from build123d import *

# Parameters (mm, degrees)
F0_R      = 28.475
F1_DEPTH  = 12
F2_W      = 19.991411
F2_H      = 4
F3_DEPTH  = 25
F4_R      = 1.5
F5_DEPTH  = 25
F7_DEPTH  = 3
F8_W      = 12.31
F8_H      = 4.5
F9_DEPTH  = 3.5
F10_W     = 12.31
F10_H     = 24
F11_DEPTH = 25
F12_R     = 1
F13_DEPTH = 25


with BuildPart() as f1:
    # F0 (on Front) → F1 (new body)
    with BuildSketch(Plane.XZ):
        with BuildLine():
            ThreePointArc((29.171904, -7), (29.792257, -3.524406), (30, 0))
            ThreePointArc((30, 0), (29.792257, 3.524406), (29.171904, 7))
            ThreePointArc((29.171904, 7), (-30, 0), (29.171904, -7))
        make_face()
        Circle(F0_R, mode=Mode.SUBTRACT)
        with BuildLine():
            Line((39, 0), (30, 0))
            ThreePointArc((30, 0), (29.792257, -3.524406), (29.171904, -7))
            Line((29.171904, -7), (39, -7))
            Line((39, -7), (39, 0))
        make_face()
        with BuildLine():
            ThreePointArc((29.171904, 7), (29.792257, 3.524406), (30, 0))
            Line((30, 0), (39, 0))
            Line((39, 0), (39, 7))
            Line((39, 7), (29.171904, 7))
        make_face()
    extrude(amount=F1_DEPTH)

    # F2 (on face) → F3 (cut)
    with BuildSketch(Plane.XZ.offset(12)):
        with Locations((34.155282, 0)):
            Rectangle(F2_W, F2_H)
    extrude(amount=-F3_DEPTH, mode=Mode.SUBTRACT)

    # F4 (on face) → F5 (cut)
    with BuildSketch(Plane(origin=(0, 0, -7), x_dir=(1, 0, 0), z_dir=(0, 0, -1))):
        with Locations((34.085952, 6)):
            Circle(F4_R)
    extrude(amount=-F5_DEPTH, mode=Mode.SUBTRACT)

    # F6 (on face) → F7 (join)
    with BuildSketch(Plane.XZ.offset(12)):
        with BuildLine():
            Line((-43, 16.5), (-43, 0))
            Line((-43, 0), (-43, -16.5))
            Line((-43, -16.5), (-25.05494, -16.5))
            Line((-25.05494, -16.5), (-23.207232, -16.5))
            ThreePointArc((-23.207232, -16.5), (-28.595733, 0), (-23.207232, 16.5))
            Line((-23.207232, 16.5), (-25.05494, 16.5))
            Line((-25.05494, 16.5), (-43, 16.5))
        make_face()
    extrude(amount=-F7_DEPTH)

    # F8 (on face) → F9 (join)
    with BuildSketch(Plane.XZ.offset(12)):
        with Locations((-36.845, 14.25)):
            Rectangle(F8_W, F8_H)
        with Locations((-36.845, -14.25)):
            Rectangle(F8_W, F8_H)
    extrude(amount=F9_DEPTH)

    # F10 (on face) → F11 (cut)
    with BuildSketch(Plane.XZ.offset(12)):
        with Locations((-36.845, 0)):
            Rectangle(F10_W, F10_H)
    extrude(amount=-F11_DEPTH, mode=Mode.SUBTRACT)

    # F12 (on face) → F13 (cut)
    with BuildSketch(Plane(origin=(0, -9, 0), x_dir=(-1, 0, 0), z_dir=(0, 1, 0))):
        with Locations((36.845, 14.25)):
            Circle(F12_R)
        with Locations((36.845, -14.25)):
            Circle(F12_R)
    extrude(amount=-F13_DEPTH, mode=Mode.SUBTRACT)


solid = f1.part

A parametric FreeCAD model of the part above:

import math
import FreeCAD as App
import Part
import Sketcher
Q = App.Units.Quantity


def add_polygon(sketch, points):
    """Adds a closed chain of lines whose ends are joined by coincident constraints."""
    first, n = sketch.GeometryCount, len(points)
    for a, b in zip(points, points[1:] + points[:1]):
        sketch.addGeometry(Part.LineSegment(App.Vector(*a, 0), App.Vector(*b, 0)), False)
    for i in range(n):
        sketch.addConstraint(Sketcher.Constraint("Coincident", first + i, 2, first + (i + 1) % n, 1))

doc = App.newDocument("Part")
params = doc.addObject("Spreadsheet::Sheet", "Params")
for row, (alias, value) in enumerate([
    ("sketch1_radius", "30 mm"),
    ("sketch1_diameter", "56.95 mm"),
    ("sketch1_height", "14 mm"),
    ("pad1_length", "12 mm"),
    ("sketch2_height", "4 mm"),
    ("pocket1_length", "25 mm"),
    ("sketch3_diameter", "3 mm"),
    ("pocket2_length", "25 mm"),
    ("sketch4_height", "33 mm"),
    ("pad2_length", "3 mm"),
    ("sketch5_height", "4.5 mm"),
    ("sketch5_width", "12.31 mm"),
    ("pad3_length", "3.5 mm"),
    ("sketch6_height", "24 mm"),
    ("sketch6_width", "12.31 mm"),
    ("pocket3_length", "25 mm"),
    ("sketch7_diameter", "2 mm"),
    ("pocket4_length", "25 mm"),
], start=1):
    params.set(f"A{row}", alias)
    params.set(f"B{row}", "=" + value)
    params.setAlias(f"B{row}", alias)

body = doc.addObject("PartDesign::Body", "Body")

sketch1 = body.newObject("Sketcher::SketchObject", "Sketch")
sketch1.AttachmentSupport = (doc.getObject("XZ_Plane"), [""])
sketch1.MapMode = "FlatFace"
sketch1.addGeometry(Part.ArcOfCircle(Part.Circle(App.Vector(0, 0, 0), App.Vector(0, 0, 1), 30), math.radians(13), math.radians(347)), False)
sketch1.addGeometry(Part.LineSegment(App.Vector(29, -7, 0), App.Vector(39, -7, 0)), False)
sketch1.addGeometry(Part.LineSegment(App.Vector(39, -7, 0), App.Vector(39, 7, 0)), False)
sketch1.addGeometry(Part.LineSegment(App.Vector(39, 7, 0), App.Vector(29, 7, 0)), False)
sketch1.addGeometry(Part.Circle(App.Vector(0, 0, 0), App.Vector(0, 0, 1), 28), False)
sketch1.addConstraint(Sketcher.Constraint("Coincident", 0, 2, 1, 1))
sketch1.addConstraint(Sketcher.Constraint("Coincident", 1, 2, 2, 1))
sketch1.addConstraint(Sketcher.Constraint("Coincident", 2, 2, 3, 1))
sketch1.addConstraint(Sketcher.Constraint("Coincident", 3, 2, 0, 1))
sketch1.addConstraint(Sketcher.Constraint("Horizontal", 1))
sketch1.addConstraint(Sketcher.Constraint("Vertical", 2))
sketch1.addConstraint(Sketcher.Constraint("Horizontal", 3))
sketch1.addConstraint(Sketcher.Constraint("Coincident", 0, 3, -1, 1))
sketch1.addConstraint(Sketcher.Constraint("Coincident", 4, 3, -1, 1))
sketch1.addConstraint(Sketcher.Constraint("Vertical", 0, 2, 3, 2))
sketch1.addConstraint(Sketcher.Constraint("Radius", 0, Q("30 mm")))
sketch1.addConstraint(Sketcher.Constraint("Diameter", 4, Q("56.95 mm")))
sketch1.addConstraint(Sketcher.Constraint("DistanceY", 2, 1, 2, 2, Q("14 mm")))
sketch1.addConstraint(Sketcher.Constraint("DistanceX", -1, 1, 1, 2, Q("39 mm")))
sketch1.setExpression("Constraints[10]", "Params.sketch1_radius")
sketch1.setExpression("Constraints[11]", "Params.sketch1_diameter")
sketch1.setExpression("Constraints[12]", "Params.sketch1_height")
pad1 = body.newObject("PartDesign::Pad", "Pad")
pad1.Profile = sketch1
pad1.setExpression("Length", "Params.pad1_length")

sketch2 = body.newObject("Sketcher::SketchObject", "Sketch001")
sketch2.AttachmentSupport = (doc.getObject("XZ_Plane"), [""])
sketch2.MapMode = "FlatFace"
sketch2.AttachmentOffset = App.Placement(App.Vector(0, 0, 12), App.Rotation())
add_polygon(sketch2, [(24.2, 2), (24.2, -2), (44.2, -2), (44.2, 2)])
sketch2.addConstraint(Sketcher.Constraint("Vertical", 0))
sketch2.addConstraint(Sketcher.Constraint("Horizontal", 1))
sketch2.addConstraint(Sketcher.Constraint("Vertical", 2))
sketch2.addConstraint(Sketcher.Constraint("Horizontal", 3))
sketch2.addConstraint(Sketcher.Constraint("DistanceY", 0, 2, 0, 1, Q("4 mm")))
sketch2.addConstraint(Sketcher.Constraint("DistanceY", 0, 2, -1, 1, Q("2 mm")))
sketch2.addConstraint(Sketcher.Constraint("DistanceX", 1, 1, 1, 2, Q("19.991411 mm")))
sketch2.addConstraint(Sketcher.Constraint("DistanceX", -1, 1, 0, 2, Q("24.159577 mm")))
sketch2.setExpression("Constraints[8]", "Params.sketch2_height")
pocket1 = body.newObject("PartDesign::Pocket", "Pocket")
pocket1.Profile = sketch2
pocket1.setExpression("Length", "Params.pocket1_length")

sketch3 = body.newObject("Sketcher::SketchObject", "Sketch002")
sketch3.AttachmentSupport = (doc.getObject("XY_Plane"), [""])
sketch3.MapMode = "FlatFace"
sketch3.AttachmentOffset = App.Placement(App.Vector(0, 0, -7), App.Rotation())
sketch3.addGeometry(Part.Circle(App.Vector(34.1, -6, 0), App.Vector(0, 0, 1), 1.5), False)
sketch3.addConstraint(Sketcher.Constraint("Diameter", 0, Q("3 mm")))
sketch3.addConstraint(Sketcher.Constraint("DistanceY", 0, 3, -1, 1, Q("6 mm")))
sketch3.addConstraint(Sketcher.Constraint("DistanceX", -1, 1, 0, 3, Q("34.085952 mm")))
sketch3.setExpression("Constraints[0]", "Params.sketch3_diameter")
pocket2 = body.newObject("PartDesign::Pocket", "Pocket001")
pocket2.Profile = sketch3
pocket2.setExpression("Length", "Params.pocket2_length")
pocket2.Reversed = True

sketch4 = body.newObject("Sketcher::SketchObject", "Sketch003")
sketch4.AttachmentSupport = (doc.getObject("XZ_Plane"), [""])
sketch4.MapMode = "FlatFace"
sketch4.AttachmentOffset = App.Placement(App.Vector(0, 0, 12), App.Rotation())
sketch4.addGeometry(Part.LineSegment(App.Vector(-43, 16, 0), App.Vector(-43, -16, 0)), False)
sketch4.addGeometry(Part.LineSegment(App.Vector(-43, -16, 0), App.Vector(-23, -16, 0)), False)
sketch4.addGeometry(Part.ArcOfCircle(Part.Circle(App.Vector(-1, 0, 0), App.Vector(0, 0, 1), 28), math.radians(144), math.radians(216)), False)
sketch4.addGeometry(Part.LineSegment(App.Vector(-23, 16, 0), App.Vector(-43, 16, 0)), False)
sketch4.addConstraint(Sketcher.Constraint("Coincident", 0, 2, 1, 1))
sketch4.addConstraint(Sketcher.Constraint("Coincident", 1, 2, 2, 2))
sketch4.addConstraint(Sketcher.Constraint("Coincident", 2, 1, 3, 1))
sketch4.addConstraint(Sketcher.Constraint("Coincident", 3, 2, 0, 1))
sketch4.addConstraint(Sketcher.Constraint("Vertical", 0))
sketch4.addConstraint(Sketcher.Constraint("Horizontal", 1))
sketch4.addConstraint(Sketcher.Constraint("Horizontal", 3))
sketch4.addConstraint(Sketcher.Constraint("Symmetric", 1, 2, 2, 1, -1))
sketch4.addConstraint(Sketcher.Constraint("DistanceY", 0, 2, 0, 1, Q("33 mm")))
sketch4.addConstraint(Sketcher.Constraint("DistanceX", 0, 2, -1, 1, Q("43 mm")))
sketch4.addConstraint(Sketcher.Constraint("Radius", 2, Q("27.956378 mm")))
sketch4.addConstraint(Sketcher.Constraint("DistanceX", 1, 1, 1, 2, Q("19.792768 mm")))
sketch4.setExpression("Constraints[8]", "Params.sketch4_height")
pad2 = body.newObject("PartDesign::Pad", "Pad001")
pad2.Profile = sketch4
pad2.setExpression("Length", "Params.pad2_length")
pad2.Reversed = True

sketch5 = body.newObject("Sketcher::SketchObject", "Sketch004")
sketch5.AttachmentSupport = (doc.getObject("XZ_Plane"), [""])
sketch5.MapMode = "FlatFace"
sketch5.AttachmentOffset = App.Placement(App.Vector(0, 0, 12), App.Rotation())
add_polygon(sketch5, [(-43, 16.5), (-43, 12), (-30.7, 12), (-30.7, 16.5)])
add_polygon(sketch5, [(-43, -12), (-43, -16.5), (-30.7, -16.5), (-30.7, -12)])
sketch5.addConstraint(Sketcher.Constraint("Vertical", 0))
sketch5.addConstraint(Sketcher.Constraint("Horizontal", 1))
sketch5.addConstraint(Sketcher.Constraint("Vertical", 2))
sketch5.addConstraint(Sketcher.Constraint("Horizontal", 3))
sketch5.addConstraint(Sketcher.Constraint("Vertical", 4))
sketch5.addConstraint(Sketcher.Constraint("Horizontal", 5))
sketch5.addConstraint(Sketcher.Constraint("Vertical", 6))
sketch5.addConstraint(Sketcher.Constraint("Horizontal", 7))
sketch5.addConstraint(Sketcher.Constraint("Symmetric", 3, 2, 4, 2, -1))
sketch5.addConstraint(Sketcher.Constraint("Symmetric", 1, 2, 6, 2, -1))
sketch5.addConstraint(Sketcher.Constraint("DistanceY", 0, 2, 0, 1, Q("4.5 mm")))
sketch5.addConstraint(Sketcher.Constraint("DistanceX", 0, 2, -1, 1, Q("43 mm")))
sketch5.addConstraint(Sketcher.Constraint("DistanceY", -1, 1, 0, 2, Q("12 mm")))
sketch5.addConstraint(Sketcher.Constraint("DistanceX", 1, 1, 1, 2, Q("12.31 mm")))
sketch5.setExpression("Constraints[18]", "Params.sketch5_height")
sketch5.setExpression("Constraints[21]", "Params.sketch5_width")
pad3 = body.newObject("PartDesign::Pad", "Pad002")
pad3.Profile = sketch5
pad3.setExpression("Length", "Params.pad3_length")

sketch6 = body.newObject("Sketcher::SketchObject", "Sketch005")
sketch6.AttachmentSupport = (doc.getObject("XZ_Plane"), [""])
sketch6.MapMode = "FlatFace"
sketch6.AttachmentOffset = App.Placement(App.Vector(0, 0, 12), App.Rotation())
add_polygon(sketch6, [(-43, 12), (-43, -12), (-31, -12), (-31, 12)])
sketch6.addConstraint(Sketcher.Constraint("Vertical", 0))
sketch6.addConstraint(Sketcher.Constraint("Horizontal", 1))
sketch6.addConstraint(Sketcher.Constraint("Vertical", 2))
sketch6.addConstraint(Sketcher.Constraint("Horizontal", 3))
sketch6.addConstraint(Sketcher.Constraint("DistanceY", 0, 2, 0, 1, Q("24 mm")))
sketch6.addConstraint(Sketcher.Constraint("DistanceX", 0, 2, -1, 1, Q("43 mm")))
sketch6.addConstraint(Sketcher.Constraint("DistanceY", 0, 2, -1, 1, Q("12 mm")))
sketch6.addConstraint(Sketcher.Constraint("DistanceX", 1, 1, 1, 2, Q("12.31 mm")))
sketch6.setExpression("Constraints[8]", "Params.sketch6_height")
sketch6.setExpression("Constraints[11]", "Params.sketch6_width")
pocket3 = body.newObject("PartDesign::Pocket", "Pocket002")
pocket3.Profile = sketch6
pocket3.setExpression("Length", "Params.pocket3_length")

sketch7 = body.newObject("Sketcher::SketchObject", "Sketch006")
sketch7.AttachmentSupport = (doc.getObject("XZ_Plane"), [""])
sketch7.MapMode = "FlatFace"
sketch7.AttachmentOffset = App.Placement(App.Vector(0, 0, 9), App.Rotation())
sketch7.addGeometry(Part.Circle(App.Vector(-36.8, 14.2, 0), App.Vector(0, 0, 1), 1), False)
sketch7.addGeometry(Part.Circle(App.Vector(-36.8, -14.2, 0), App.Vector(0, 0, 1), 1), False)
sketch7.addConstraint(Sketcher.Constraint("Equal", 0, 1))
sketch7.addConstraint(Sketcher.Constraint("Symmetric", 0, 3, 1, 3, -1))
sketch7.addConstraint(Sketcher.Constraint("Diameter", 0, Q("2 mm")))
sketch7.addConstraint(Sketcher.Constraint("DistanceY", 1, 3, 0, 3, Q("28.5 mm")))
sketch7.addConstraint(Sketcher.Constraint("DistanceX", 0, 3, -1, 1, Q("36.845 mm")))
sketch7.setExpression("Constraints[2]", "Params.sketch7_diameter")
pocket4 = body.newObject("PartDesign::Pocket", "Pocket003")
pocket4.Profile = sketch7
pocket4.setExpression("Length", "Params.pocket4_length")
pocket4.Reversed = True

doc.recompute()
